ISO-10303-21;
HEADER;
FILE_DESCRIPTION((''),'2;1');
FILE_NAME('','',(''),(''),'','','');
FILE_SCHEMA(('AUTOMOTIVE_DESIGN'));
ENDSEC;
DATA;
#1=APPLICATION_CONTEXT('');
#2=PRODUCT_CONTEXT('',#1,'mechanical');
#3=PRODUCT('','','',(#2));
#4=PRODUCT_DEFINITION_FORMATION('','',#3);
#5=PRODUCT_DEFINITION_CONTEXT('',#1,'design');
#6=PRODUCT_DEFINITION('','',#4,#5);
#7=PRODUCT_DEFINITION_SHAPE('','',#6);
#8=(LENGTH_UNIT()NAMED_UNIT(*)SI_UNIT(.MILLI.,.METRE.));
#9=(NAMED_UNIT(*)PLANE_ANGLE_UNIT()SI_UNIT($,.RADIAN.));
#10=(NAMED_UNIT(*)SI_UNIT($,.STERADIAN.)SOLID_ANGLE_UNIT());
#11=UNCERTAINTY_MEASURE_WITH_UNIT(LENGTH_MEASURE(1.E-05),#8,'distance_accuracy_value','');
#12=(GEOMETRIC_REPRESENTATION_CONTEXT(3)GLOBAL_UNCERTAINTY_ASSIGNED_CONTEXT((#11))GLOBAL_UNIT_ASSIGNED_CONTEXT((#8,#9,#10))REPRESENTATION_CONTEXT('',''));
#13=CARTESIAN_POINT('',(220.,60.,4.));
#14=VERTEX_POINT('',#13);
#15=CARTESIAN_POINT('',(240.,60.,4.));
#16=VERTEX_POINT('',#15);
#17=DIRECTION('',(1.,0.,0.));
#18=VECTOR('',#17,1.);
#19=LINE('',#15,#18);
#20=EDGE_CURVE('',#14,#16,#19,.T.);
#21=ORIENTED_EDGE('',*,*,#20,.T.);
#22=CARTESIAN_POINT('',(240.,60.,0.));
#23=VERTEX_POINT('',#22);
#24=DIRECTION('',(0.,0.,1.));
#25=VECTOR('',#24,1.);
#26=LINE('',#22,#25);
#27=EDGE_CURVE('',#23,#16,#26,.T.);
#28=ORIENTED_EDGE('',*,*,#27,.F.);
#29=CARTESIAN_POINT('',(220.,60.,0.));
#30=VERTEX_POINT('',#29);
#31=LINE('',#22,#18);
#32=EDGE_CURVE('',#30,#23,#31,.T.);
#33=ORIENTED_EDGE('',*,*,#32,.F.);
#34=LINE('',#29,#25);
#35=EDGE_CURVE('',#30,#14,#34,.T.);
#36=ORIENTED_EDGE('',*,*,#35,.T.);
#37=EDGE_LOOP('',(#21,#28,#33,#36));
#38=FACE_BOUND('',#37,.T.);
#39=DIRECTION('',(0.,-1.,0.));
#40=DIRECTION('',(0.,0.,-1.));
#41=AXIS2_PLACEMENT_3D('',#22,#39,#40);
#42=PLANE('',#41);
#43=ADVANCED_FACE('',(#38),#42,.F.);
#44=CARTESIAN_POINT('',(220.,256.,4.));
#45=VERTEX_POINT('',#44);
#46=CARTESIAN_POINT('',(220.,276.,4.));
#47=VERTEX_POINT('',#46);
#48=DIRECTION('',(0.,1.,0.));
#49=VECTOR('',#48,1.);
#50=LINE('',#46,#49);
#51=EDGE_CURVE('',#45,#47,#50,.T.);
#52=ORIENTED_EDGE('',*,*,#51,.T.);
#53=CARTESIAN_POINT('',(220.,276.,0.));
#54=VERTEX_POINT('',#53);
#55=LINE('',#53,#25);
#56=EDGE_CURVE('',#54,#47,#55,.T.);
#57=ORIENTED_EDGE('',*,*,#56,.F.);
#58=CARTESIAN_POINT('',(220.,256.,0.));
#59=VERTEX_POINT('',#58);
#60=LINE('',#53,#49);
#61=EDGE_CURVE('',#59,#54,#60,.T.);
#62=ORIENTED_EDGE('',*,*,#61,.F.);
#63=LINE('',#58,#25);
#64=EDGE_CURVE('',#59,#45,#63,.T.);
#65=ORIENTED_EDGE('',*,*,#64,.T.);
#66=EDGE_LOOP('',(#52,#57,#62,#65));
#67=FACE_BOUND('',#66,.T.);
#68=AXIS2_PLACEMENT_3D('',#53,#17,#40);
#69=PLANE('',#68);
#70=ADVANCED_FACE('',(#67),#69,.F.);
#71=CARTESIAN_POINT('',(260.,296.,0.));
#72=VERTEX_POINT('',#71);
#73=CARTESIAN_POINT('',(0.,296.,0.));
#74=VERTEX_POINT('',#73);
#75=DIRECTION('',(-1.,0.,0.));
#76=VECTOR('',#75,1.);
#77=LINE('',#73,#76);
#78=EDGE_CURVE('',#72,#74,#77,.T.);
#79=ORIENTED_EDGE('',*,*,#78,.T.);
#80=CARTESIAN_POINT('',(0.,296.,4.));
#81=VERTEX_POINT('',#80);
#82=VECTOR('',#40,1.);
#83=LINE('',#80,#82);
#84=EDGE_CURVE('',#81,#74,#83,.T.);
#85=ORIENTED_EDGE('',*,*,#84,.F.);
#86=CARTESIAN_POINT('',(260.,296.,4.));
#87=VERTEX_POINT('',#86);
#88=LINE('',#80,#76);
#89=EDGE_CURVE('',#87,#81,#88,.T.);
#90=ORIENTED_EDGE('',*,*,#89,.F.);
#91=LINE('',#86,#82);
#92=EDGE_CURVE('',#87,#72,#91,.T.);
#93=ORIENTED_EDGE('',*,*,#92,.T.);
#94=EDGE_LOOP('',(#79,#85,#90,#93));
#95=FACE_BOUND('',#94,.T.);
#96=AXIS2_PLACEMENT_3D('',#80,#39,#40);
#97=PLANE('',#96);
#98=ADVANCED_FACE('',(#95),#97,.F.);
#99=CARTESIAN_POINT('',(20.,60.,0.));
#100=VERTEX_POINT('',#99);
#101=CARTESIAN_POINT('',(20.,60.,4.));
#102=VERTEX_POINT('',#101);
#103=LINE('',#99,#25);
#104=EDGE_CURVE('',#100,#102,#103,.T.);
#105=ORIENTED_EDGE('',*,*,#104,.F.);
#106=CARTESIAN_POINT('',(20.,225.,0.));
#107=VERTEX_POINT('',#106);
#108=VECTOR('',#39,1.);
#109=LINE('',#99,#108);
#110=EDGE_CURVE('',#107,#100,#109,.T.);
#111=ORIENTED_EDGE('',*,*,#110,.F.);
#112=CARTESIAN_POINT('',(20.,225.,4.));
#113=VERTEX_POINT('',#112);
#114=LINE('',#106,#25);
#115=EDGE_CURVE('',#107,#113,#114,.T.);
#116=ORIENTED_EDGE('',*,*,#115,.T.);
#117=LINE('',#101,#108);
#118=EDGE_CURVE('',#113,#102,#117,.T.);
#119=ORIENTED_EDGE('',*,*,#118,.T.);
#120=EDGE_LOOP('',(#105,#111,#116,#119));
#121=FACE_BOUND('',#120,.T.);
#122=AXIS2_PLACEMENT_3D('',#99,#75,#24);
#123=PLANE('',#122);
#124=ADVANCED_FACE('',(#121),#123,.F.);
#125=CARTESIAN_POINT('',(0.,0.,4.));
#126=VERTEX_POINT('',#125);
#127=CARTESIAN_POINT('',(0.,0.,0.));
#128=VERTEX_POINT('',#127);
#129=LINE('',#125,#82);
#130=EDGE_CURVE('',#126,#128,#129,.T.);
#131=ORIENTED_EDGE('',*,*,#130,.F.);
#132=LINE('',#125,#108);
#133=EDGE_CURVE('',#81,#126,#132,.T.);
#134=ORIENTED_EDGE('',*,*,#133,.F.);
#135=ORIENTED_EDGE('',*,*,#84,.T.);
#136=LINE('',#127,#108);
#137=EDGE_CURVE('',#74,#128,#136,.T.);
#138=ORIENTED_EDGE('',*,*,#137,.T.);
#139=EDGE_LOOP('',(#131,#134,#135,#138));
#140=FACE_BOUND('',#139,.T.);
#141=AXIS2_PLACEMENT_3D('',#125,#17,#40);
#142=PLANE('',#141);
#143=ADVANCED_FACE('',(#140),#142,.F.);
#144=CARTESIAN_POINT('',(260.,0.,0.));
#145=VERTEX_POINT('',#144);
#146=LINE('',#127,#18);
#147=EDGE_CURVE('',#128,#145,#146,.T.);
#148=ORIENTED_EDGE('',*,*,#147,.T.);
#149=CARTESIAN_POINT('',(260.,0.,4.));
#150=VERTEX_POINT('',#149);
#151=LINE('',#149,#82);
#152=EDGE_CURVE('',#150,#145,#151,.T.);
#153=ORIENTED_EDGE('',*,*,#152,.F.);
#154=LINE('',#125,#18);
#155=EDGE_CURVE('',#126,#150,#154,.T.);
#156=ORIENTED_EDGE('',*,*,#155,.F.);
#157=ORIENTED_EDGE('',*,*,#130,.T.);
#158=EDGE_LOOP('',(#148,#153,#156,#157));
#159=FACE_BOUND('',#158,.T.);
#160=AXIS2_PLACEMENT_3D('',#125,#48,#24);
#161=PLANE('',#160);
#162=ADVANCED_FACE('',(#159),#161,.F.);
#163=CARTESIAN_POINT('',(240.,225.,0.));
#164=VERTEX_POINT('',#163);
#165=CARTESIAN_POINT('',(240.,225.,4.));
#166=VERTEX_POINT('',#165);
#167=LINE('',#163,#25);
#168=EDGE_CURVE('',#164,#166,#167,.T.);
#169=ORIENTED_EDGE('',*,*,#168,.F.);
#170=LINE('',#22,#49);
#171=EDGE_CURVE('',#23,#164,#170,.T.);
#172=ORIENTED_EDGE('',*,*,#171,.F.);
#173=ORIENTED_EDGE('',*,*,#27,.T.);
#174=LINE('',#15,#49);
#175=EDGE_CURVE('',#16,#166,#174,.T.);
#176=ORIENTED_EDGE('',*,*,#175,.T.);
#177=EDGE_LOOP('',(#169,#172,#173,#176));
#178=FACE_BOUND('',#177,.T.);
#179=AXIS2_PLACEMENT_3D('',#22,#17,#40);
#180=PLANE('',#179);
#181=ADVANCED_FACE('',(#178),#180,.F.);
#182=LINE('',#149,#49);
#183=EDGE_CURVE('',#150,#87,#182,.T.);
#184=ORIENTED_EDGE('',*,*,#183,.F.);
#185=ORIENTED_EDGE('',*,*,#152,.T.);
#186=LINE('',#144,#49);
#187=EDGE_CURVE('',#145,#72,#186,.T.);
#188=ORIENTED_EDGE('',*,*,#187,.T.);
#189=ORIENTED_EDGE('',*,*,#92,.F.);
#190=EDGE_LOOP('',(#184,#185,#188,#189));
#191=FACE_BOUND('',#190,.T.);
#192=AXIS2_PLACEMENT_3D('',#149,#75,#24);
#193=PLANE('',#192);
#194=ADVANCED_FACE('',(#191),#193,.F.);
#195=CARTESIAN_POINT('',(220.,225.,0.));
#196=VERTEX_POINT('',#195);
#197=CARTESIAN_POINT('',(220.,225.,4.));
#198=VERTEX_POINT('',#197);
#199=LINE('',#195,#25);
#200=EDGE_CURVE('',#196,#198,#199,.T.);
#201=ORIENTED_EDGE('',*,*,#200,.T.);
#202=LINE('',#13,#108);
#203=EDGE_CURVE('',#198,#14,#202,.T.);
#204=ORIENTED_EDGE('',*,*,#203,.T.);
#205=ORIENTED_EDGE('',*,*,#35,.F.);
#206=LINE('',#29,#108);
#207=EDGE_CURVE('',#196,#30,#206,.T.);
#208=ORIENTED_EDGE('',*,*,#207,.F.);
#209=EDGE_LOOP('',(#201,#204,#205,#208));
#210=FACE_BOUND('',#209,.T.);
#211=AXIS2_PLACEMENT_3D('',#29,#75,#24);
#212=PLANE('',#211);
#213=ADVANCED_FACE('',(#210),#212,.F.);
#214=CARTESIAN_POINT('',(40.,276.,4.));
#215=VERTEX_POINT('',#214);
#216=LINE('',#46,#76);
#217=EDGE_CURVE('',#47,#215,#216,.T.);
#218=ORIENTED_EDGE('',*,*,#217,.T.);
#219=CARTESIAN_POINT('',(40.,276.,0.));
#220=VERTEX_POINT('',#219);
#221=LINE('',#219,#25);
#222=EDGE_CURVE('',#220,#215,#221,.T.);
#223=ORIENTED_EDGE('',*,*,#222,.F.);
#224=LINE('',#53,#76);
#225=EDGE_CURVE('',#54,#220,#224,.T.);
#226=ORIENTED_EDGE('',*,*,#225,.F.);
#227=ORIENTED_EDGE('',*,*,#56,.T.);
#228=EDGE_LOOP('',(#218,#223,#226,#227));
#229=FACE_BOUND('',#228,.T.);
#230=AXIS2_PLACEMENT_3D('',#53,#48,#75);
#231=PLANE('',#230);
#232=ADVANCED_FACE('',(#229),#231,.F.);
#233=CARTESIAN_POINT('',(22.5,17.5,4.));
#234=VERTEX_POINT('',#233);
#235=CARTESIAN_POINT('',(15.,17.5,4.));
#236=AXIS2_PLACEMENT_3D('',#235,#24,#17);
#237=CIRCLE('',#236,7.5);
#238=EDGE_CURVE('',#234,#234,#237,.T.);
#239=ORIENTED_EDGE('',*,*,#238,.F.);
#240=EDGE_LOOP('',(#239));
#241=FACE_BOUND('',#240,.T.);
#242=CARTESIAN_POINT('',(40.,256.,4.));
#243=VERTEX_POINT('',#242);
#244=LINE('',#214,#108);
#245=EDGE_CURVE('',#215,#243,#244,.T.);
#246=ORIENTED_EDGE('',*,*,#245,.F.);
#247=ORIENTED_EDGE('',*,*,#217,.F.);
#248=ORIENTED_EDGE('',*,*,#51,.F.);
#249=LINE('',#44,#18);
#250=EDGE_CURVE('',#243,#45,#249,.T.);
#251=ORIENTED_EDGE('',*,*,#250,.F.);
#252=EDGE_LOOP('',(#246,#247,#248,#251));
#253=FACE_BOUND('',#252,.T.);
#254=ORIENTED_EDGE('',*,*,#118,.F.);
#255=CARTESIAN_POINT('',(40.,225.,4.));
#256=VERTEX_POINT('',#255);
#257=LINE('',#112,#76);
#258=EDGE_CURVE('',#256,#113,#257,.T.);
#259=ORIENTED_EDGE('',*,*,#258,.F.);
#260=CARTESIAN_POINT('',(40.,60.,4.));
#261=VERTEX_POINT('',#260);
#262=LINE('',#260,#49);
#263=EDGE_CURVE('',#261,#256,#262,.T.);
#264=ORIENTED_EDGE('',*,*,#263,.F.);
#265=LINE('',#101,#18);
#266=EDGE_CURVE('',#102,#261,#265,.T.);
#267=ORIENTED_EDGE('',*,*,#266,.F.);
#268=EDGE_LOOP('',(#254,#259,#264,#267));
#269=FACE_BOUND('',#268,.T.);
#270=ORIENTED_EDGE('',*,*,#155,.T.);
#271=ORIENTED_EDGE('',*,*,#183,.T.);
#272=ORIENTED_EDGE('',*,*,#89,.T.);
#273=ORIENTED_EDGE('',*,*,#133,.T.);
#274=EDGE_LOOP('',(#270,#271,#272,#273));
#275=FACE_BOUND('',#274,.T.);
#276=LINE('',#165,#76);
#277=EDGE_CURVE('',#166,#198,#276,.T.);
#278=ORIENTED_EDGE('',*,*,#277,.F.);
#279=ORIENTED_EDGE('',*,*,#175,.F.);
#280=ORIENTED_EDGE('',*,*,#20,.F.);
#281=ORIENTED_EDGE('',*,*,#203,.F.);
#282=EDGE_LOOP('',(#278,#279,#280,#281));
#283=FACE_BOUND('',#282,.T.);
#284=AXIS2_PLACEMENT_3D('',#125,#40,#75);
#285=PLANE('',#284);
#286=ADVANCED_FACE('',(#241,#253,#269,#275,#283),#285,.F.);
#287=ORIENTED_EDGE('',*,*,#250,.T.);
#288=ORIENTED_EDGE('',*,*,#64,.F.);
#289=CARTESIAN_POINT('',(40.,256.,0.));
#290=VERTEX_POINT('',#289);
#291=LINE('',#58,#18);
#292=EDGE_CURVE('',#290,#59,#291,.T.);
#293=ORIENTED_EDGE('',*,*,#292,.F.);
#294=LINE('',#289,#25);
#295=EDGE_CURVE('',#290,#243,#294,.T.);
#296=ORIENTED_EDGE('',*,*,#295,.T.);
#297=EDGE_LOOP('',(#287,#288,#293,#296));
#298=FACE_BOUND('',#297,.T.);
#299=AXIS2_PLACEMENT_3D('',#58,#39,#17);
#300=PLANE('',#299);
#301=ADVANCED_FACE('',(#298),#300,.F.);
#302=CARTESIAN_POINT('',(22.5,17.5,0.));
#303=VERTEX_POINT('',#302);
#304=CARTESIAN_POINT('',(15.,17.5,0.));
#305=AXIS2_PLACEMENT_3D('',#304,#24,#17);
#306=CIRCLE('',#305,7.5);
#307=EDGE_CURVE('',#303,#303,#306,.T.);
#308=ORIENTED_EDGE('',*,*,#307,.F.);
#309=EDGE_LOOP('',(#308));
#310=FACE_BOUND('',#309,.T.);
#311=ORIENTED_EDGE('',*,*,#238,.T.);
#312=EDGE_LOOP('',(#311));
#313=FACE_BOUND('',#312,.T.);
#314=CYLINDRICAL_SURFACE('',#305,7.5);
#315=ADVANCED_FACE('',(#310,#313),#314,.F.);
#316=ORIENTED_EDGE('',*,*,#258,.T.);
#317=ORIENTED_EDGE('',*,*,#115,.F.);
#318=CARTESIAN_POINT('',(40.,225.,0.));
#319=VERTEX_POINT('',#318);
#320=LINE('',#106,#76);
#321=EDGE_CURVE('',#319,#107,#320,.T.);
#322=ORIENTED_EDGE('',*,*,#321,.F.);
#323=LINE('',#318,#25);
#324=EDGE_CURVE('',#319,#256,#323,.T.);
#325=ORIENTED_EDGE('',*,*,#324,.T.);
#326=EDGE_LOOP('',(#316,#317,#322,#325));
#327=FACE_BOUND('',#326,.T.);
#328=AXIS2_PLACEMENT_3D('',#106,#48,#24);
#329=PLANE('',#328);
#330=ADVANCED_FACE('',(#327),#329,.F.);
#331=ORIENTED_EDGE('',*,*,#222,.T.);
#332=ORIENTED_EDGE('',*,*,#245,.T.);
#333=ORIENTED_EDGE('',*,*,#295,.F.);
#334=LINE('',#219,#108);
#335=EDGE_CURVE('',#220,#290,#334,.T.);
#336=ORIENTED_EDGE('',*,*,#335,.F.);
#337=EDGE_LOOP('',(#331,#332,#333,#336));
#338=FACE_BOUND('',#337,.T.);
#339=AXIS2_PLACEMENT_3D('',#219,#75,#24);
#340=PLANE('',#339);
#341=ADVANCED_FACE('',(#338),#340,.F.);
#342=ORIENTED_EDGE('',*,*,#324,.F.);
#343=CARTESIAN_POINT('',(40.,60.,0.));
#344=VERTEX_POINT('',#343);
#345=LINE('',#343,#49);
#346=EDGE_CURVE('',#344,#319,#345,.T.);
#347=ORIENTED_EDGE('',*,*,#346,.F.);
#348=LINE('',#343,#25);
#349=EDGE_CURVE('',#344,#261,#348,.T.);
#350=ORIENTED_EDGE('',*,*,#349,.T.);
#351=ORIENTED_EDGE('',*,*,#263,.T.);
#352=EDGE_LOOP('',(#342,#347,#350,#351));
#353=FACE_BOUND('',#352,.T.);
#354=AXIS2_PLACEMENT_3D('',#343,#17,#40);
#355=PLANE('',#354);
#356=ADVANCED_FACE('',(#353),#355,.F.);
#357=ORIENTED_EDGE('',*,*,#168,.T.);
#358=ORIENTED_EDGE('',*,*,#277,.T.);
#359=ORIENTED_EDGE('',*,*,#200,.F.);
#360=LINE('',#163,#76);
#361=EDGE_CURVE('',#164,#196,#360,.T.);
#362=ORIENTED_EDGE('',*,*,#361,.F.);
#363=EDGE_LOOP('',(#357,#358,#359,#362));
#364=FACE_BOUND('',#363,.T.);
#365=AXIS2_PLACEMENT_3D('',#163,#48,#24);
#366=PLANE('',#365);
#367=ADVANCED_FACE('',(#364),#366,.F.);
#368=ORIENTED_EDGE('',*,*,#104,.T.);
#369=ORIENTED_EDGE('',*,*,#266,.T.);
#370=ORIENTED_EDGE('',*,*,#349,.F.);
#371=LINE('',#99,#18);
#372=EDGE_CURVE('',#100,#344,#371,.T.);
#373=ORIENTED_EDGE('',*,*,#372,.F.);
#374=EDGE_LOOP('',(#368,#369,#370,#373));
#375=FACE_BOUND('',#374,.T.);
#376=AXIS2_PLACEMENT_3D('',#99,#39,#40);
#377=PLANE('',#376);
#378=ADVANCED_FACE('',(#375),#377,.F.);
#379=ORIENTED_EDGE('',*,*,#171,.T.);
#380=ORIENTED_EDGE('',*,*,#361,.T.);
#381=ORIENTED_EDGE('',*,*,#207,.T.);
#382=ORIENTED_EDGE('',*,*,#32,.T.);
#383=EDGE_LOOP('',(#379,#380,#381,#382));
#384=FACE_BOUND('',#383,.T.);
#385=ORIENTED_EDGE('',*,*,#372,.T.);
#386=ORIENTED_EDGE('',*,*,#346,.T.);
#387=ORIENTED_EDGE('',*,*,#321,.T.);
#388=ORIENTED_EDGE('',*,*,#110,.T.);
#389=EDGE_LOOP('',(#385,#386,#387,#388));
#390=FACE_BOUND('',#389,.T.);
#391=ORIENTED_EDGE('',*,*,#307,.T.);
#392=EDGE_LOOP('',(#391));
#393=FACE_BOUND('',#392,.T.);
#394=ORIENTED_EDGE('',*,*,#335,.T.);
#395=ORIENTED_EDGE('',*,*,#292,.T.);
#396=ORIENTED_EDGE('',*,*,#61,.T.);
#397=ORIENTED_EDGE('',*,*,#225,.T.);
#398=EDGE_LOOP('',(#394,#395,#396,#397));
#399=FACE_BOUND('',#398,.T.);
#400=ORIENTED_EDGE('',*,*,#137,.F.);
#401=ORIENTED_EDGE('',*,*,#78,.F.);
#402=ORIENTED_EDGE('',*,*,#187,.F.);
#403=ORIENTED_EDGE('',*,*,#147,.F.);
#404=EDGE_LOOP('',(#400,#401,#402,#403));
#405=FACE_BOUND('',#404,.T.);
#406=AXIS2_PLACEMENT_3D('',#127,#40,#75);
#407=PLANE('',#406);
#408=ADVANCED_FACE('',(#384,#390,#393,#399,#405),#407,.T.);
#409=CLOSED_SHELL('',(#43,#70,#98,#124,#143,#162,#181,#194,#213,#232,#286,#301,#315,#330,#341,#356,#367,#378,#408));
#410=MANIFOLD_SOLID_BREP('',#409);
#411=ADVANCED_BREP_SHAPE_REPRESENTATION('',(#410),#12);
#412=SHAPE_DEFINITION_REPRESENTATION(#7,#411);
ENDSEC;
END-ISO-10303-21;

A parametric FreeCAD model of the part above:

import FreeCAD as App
import Part
import Sketcher

V = App.Vector
Q = App.Units.Quantity


def add_polygon(sketch, points):
    """Adds a closed chain of lines whose ends are joined by coincident constraints."""
    first, n = sketch.GeometryCount, len(points)
    for a, b in zip(points, points[1:] + points[:1]):
        sketch.addGeometry(Part.LineSegment(App.Vector(*a, 0), App.Vector(*b, 0)), False)
    for i in range(n):
        sketch.addConstraint(Sketcher.Constraint("Coincident", first + i, 2, first + (i + 1) % n, 1))

doc = App.newDocument("Part")
body = doc.addObject("PartDesign::Body", "Body")

sketch1 = body.newObject("Sketcher::SketchObject", "Sketch")
sketch1.AttachmentSupport = (doc.getObject("XY_Plane"), [""])
sketch1.MapMode = "FlatFace"
add_polygon(sketch1, [(0, 296), (0, 0), (260, 0), (260, 296)])
sketch1.addConstraint([
    Sketcher.Constraint("Vertical", 0),
    Sketcher.Constraint("Horizontal", 1),
    Sketcher.Constraint("Vertical", 2),
    Sketcher.Constraint("Horizontal", 3),
    Sketcher.Constraint("Coincident", 0, 2, -1, 1),
    Sketcher.Constraint("DistanceX", 1, 1, 1, 2, Q("260 mm")),
    Sketcher.Constraint("DistanceY", 0, 2, 0, 1, Q("296 mm")),
])
pad1 = body.newObject("PartDesign::Pad", "Pad")
pad1.Profile = sketch1
pad1.Length = 4

sketch2 = body.newObject("Sketcher::SketchObject", "Sketch001")
sketch2.AttachmentSupport = (doc.getObject("XY_Plane"), [""])
sketch2.MapMode = "FlatFace"
sketch2.AttachmentOffset = App.Placement(V(0, 0, 4), App.Rotation())
sketch2.addGeometry(Part.Circle(V(15, 18, 0), V(0, 0, 1), 8), False)
add_polygon(sketch2, [(20, 225), (20, 60), (40, 60), (40, 225)])
add_polygon(sketch2, [(220, 225), (220, 60), (240, 60), (240, 225)])
add_polygon(sketch2, [(40, 276), (40, 256), (220, 256), (220, 276)])
sketch2.addConstraint([
    Sketcher.Constraint("Vertical", 1),
    Sketcher.Constraint("Horizontal", 2),
    Sketcher.Constraint("Vertical", 3),
    Sketcher.Constraint("Horizontal", 4),
    Sketcher.Constraint("Vertical", 5),
    Sketcher.Constraint("Horizontal", 6),
    Sketcher.Constraint("Vertical", 7),
    Sketcher.Constraint("Horizontal", 8),
    Sketcher.Constraint("Vertical", 9),
    Sketcher.Constraint("Horizontal", 10),
    Sketcher.Constraint("Vertical", 11),
    Sketcher.Constraint("Horizontal", 12),
    Sketcher.Constraint("Horizontal", 2, 2, 5, 2),
    Sketcher.Constraint("Horizontal", 4, 2, 7, 2),
    Sketcher.Constraint("Vertical", 3, 2, 9, 2),
    Sketcher.Constraint("Vertical", 8, 2, 10, 2),
    Sketcher.Constraint("Equal", 4, 6),
    Sketcher.Constraint("Equal", 8, 9),
    Sketcher.Constraint("Diameter", 0, Q("15 mm")),
    Sketcher.Constraint("DistanceX", 2, 1, 2, 2, Q("20 mm")),
    Sketcher.Constraint("DistanceX", 10, 1, 10, 2, Q("180 mm")),
    Sketcher.Constraint("DistanceY", 1, 2, 1, 1, Q("165 mm")),
    Sketcher.Constraint("DistanceX", -1, 1, 0, 3, Q("15 mm")),
    Sketcher.Constraint("DistanceX", -1, 1, 1, 2, Q("20 mm")),
    Sketcher.Constraint("DistanceY", -1, 1, 1, 2, Q("60 mm")),
    Sketcher.Constraint("DistanceY", -1, 1, 9, 2, Q("256 mm")),
    Sketcher.Constraint("DistanceY", -1, 1, 0, 3, Q("17.5 mm")),
])
pocket1 = body.newObject("PartDesign::Pocket", "Pocket")
pocket1.Profile = sketch2
pocket1.Length = 4

doc.recompute()
